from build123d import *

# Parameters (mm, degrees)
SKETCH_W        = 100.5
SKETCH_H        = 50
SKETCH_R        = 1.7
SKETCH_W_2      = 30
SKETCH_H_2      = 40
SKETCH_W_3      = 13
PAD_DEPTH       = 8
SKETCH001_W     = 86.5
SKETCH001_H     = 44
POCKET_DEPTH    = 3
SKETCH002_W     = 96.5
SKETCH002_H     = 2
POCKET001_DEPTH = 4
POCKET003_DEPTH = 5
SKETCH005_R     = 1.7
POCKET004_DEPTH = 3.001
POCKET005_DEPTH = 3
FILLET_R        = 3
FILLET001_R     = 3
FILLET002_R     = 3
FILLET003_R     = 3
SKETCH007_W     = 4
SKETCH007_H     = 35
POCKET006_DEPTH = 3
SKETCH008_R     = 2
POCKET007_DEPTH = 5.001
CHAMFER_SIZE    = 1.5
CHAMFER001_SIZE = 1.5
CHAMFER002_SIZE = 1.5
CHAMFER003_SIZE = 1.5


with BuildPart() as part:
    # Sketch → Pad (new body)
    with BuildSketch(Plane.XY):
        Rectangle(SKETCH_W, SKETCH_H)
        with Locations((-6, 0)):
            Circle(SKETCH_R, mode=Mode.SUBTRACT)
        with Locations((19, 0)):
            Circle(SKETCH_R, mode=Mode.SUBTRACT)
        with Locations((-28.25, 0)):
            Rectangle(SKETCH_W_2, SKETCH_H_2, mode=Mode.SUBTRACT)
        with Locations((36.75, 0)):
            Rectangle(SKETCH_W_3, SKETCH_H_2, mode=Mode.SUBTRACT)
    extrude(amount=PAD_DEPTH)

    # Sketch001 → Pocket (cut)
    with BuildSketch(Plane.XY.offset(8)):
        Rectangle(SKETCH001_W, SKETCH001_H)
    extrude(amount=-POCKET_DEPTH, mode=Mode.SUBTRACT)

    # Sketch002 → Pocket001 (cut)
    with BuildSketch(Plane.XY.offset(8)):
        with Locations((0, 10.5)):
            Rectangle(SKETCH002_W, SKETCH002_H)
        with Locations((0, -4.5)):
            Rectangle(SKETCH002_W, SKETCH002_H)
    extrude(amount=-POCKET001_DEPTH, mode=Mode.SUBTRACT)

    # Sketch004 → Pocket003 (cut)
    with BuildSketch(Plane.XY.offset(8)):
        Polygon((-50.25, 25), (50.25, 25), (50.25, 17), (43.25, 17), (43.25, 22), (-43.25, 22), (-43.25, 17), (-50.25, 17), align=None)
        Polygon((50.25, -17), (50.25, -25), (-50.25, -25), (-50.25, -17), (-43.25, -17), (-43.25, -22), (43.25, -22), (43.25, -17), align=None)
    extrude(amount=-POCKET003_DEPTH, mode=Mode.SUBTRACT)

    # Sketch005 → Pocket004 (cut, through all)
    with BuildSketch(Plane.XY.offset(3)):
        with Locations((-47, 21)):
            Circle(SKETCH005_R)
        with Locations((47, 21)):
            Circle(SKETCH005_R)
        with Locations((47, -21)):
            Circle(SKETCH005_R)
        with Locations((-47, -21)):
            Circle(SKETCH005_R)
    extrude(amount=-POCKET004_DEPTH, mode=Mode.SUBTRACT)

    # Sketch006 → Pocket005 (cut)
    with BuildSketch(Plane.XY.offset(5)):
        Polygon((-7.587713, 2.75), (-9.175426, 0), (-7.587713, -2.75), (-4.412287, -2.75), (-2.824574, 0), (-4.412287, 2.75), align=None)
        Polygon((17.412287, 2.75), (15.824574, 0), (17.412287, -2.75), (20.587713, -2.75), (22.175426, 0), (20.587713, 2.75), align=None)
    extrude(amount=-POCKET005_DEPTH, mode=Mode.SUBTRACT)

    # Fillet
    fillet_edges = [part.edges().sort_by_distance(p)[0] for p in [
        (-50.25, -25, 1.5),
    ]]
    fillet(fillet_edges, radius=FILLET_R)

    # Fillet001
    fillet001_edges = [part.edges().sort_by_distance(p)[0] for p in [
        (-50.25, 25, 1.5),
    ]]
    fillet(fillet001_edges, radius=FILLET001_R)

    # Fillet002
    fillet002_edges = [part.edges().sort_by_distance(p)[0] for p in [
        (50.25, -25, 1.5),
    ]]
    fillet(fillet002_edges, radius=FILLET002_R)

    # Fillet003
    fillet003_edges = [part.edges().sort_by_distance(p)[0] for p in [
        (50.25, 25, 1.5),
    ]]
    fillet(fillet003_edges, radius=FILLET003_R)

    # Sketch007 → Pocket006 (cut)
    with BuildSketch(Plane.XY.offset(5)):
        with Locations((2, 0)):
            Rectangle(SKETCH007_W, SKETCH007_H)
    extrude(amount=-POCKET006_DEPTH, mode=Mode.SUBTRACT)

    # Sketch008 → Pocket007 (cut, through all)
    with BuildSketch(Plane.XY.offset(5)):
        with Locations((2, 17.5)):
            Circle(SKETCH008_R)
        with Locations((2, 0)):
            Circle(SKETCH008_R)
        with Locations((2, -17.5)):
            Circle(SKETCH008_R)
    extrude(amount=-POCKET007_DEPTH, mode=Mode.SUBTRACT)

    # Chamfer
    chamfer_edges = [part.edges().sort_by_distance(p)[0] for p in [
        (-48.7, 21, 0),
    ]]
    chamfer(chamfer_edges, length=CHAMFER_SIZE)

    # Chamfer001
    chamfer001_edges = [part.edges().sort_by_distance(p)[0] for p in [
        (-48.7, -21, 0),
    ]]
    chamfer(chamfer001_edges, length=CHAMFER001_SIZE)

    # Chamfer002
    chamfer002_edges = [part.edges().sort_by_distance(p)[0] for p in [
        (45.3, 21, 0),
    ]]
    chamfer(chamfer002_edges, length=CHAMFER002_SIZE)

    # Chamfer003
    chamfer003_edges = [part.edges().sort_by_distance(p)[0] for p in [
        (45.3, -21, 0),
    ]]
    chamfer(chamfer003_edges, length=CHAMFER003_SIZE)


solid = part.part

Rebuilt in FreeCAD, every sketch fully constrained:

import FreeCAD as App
import Part
import Sketcher

V = App.Vector
Q = App.Units.Quantity


def edges_at(feature, points):
    """Names of the edges that pass closest to the given points."""
    edges = feature.Shape.Edges
    near = lambda p: min(range(len(edges)), key=lambda i: edges[i].distToShape(Part.Vertex(*p))[0])
    return sorted({f"Edge{near(p) + 1}" for p in points})

doc = App.newDocument("Part")
body = doc.addObject("PartDesign::Body", "Body")

# Sketch on XY plane
sketch1 = body.newObject("Sketcher::SketchObject", "Sketch")
sketch1.AttachmentSupport = (doc.getObject("XY_Plane"), [""])
sketch1.MapMode = "FlatFace"
sketch1.addGeometry([
    Part.LineSegment(V(-50.25, 25, 0), V(-50.25, -25, 0)),  # 0
    Part.LineSegment(V(-50.25, -25, 0), V(50.25, -25, 0)),  # 1
    Part.LineSegment(V(50.25, -25, 0), V(50.25, 25, 0)),  # 2
    Part.LineSegment(V(50.25, 25, 0), V(-50.25, 25, 0)),  # 3
    Part.LineSegment(V(-13.25, -20, 0), V(-43.25, -20, 0)),  # 4
    Part.LineSegment(V(-43.25, -20, 0), V(-43.25, 20, 0)),  # 5
    Part.LineSegment(V(-43.25, 20, 0), V(-13.25, 20, 0)),  # 6
    Part.LineSegment(V(-13.25, 20, 0), V(-13.25, -20, 0)),  # 7
    Part.Circle(V(-6, 0, 0), V(0, 0, 1), 1.7),  # 8
    Part.Circle(V(19, 0, 0), V(0, 0, 1), 1.7),  # 9
    Part.LineSegment(V(43.25, -20, 0), V(30.25, -20, 0)),  # 10
    Part.LineSegment(V(30.25, -20, 0), V(30.25, 20, 0)),  # 11
    Part.LineSegment(V(30.25, 20, 0), V(43.25, 20, 0)),  # 12
    Part.LineSegment(V(43.25, 20, 0), V(43.25, -20, 0)),  # 13
], False)
sketch1.addConstraint([
    Sketcher.Constraint("Coincident", 0, 2, 1, 1),
    Sketcher.Constraint("Coincident", 1, 2, 2, 1),
    Sketcher.Constraint("Coincident", 2, 2, 3, 1),
    Sketcher.Constraint("Coincident", 3, 2, 0, 1),
    Sketcher.Constraint("Coincident", 4, 2, 5, 1),
    Sketcher.Constraint("Coincident", 5, 2, 6, 1),
    Sketcher.Constraint("Coincident", 6, 2, 7, 1),
    Sketcher.Constraint("Coincident", 7, 2, 4, 1),
    Sketcher.Constraint("Coincident", 10, 2, 11, 1),
    Sketcher.Constraint("Coincident", 11, 2, 12, 1),
    Sketcher.Constraint("Coincident", 12, 2, 13, 1),
    Sketcher.Constraint("Coincident", 13, 2, 10, 1),
    Sketcher.Constraint("Vertical", 0),
    Sketcher.Constraint("Horizontal", 1),
    Sketcher.Constraint("Vertical", 2),
    Sketcher.Constraint("Horizontal", 3),
    Sketcher.Constraint("Horizontal", 4),
    Sketcher.Constraint("Vertical", 5),
    Sketcher.Constraint("Horizontal", 6),
    Sketcher.Constraint("Vertical", 7),
    Sketcher.Constraint("Horizontal", 10),
    Sketcher.Constraint("Vertical", 11),
    Sketcher.Constraint("Horizontal", 12),
    Sketcher.Constraint("Vertical", 13),
    Sketcher.Constraint("Equal", 8, 9),
    Sketcher.Constraint("Symmetric", 0, 2, 2, 2, -1, 1),
    Sketcher.Constraint("Symmetric", 4, 2, 12, 2, -1, 1),
    Sketcher.Constraint("PointOnObject", 8, 3, -1),
    Sketcher.Constraint("PointOnObject", 9, 3, -1),
    Sketcher.Constraint("Horizontal", 7, 2, 10, 2),
    Sketcher.Constraint("Horizontal", 6, 2, 11, 2),
    Sketcher.Constraint("Diameter", 8, Q("3.4 mm")),
    Sketcher.Constraint("DistanceX", 4, 2, 4, 1, Q("30 mm")),
    Sketcher.Constraint("DistanceX", 10, 2, 10, 1, Q("13 mm")),
    Sketcher.Constraint("DistanceY", 0, 2, 0, 1, Q("50 mm")),
    Sketcher.Constraint("DistanceY", 5, 1, 5, 2, Q("40 mm")),
    Sketcher.Constraint("DistanceX", 1, 1, 1, 2, Q("100.5 mm")),
    Sketcher.Constraint("DistanceX", 8, 3, -1, 1, Q("6 mm")),
    Sketcher.Constraint("DistanceX", -1, 1, 9, 3, Q("19 mm")),
    Sketcher.Constraint("DistanceX", 0, 2, 4, 2, Q("7 mm")),
])
pad1 = body.newObject("PartDesign::Pad", "Pad")
pad1.Profile = sketch1
pad1.Length = 8

# Sketch on XY plane
sketch2 = body.newObject("Sketcher::SketchObject", "Sketch001")
sketch2.AttachmentSupport = (doc.getObject("XY_Plane"), [""])
sketch2.MapMode = "FlatFace"
sketch2.AttachmentOffset = App.Placement(V(0, 0, 8), App.Rotation())
sketch2.addGeometry([
    Part.LineSegment(V(-43.25, 22, 0), V(-43.25, -22, 0)),
    Part.LineSegment(V(-43.25, -22, 0), V(43.25, -22, 0)),
    Part.LineSegment(V(43.25, -22, 0), V(43.25, 22, 0)),
    Part.LineSegment(V(43.25, 22, 0), V(-43.25, 22, 0)),
], False)
sketch2.addConstraint([
    Sketcher.Constraint("Coincident", 0, 2, 1, 1),
    Sketcher.Constraint("Coincident", 1, 2, 2, 1),
    Sketcher.Constraint("Coincident", 2, 2, 3, 1),
    Sketcher.Constraint("Coincident", 3, 2, 0, 1),
    Sketcher.Constraint("Vertical", 0),
    Sketcher.Constraint("Horizontal", 1),
    Sketcher.Constraint("Vertical", 2),
    Sketcher.Constraint("Horizontal", 3),
    Sketcher.Constraint("Symmetric", 0, 2, 2, 2, -1, 1),
    Sketcher.Constraint("DistanceY", 0, 2, 0, 1, Q("44 mm")),
    Sketcher.Constraint("DistanceX", 1, 1, 1, 2, Q("86.5 mm")),
])
pocket1 = body.newObject("PartDesign::Pocket", "Pocket")
pocket1.Profile = sketch2
pocket1.Length = 3

# Sketch on XY plane
sketch3 = body.newObject("Sketcher::SketchObject", "Sketch002")
sketch3.AttachmentSupport = (doc.getObject("XY_Plane"), [""])
sketch3.MapMode = "FlatFace"
sketch3.AttachmentOffset = App.Placement(V(0, 0, 8), App.Rotation())
sketch3.addGeometry([
    Part.LineSegment(V(-48.25, 11.5, 0), V(-48.25, 9.5, 0)),  # 0
    Part.LineSegment(V(-48.25, 9.5, 0), V(48.25, 9.5, 0)),  # 1
    Part.LineSegment(V(48.25, 9.5, 0), V(48.25, 11.5, 0)),  # 2
    Part.LineSegment(V(48.25, 11.5, 0), V(-48.25, 11.5, 0)),  # 3
    Part.LineSegment(V(-48.25, -3.5, 0), V(-48.25, -5.5, 0)),  # 4
    Part.LineSegment(V(-48.25, -5.5, 0), V(48.25, -5.5, 0)),  # 5
    Part.LineSegment(V(48.25, -5.5, 0), V(48.25, -3.5, 0)),  # 6
    Part.LineSegment(V(48.25, -3.5, 0), V(-48.25, -3.5, 0)),  # 7
], False)
sketch3.addConstraint([
    Sketcher.Constraint("Coincident", 0, 2, 1, 1),
    Sketcher.Constraint("Coincident", 1, 2, 2, 1),
    Sketcher.Constraint("Coincident", 2, 2, 3, 1),
    Sketcher.Constraint("Coincident", 3, 2, 0, 1),
    Sketcher.Constraint("Coincident", 4, 2, 5, 1),
    Sketcher.Constraint("Coincident", 5, 2, 6, 1),
    Sketcher.Constraint("Coincident", 6, 2, 7, 1),
    Sketcher.Constraint("Coincident", 7, 2, 4, 1),
    Sketcher.Constraint("Vertical", 0),
    Sketcher.Constraint("Horizontal", 1),
    Sketcher.Constraint("Vertical", 2),
    Sketcher.Constraint("Horizontal", 3),
    Sketcher.Constraint("Vertical", 4),
    Sketcher.Constraint("Horizontal", 5),
    Sketcher.Constraint("Vertical", 6),
    Sketcher.Constraint("Horizontal", 7),
    Sketcher.Constraint("Vertical", 3, 2, 4, 2),
    Sketcher.Constraint("Vertical", 2, 2, 5, 2),
    Sketcher.Constraint("Equal", 2, 4),
    Sketcher.Constraint("DistanceY", 0, 2, 0, 1, Q("2 mm")),
    Sketcher.Constraint("DistanceX", 1, 1, 1, 2, Q("96.5 mm")),
    Sketcher.Constraint("DistanceY", 4, 2, 0, 2, Q("15 mm")),
    Sketcher.Constraint("DistanceY", -1, 1, 0, 2, Q("9.5 mm")),
    Sketcher.Constraint("DistanceX", 0, 2, -1, 1, Q("48.25 mm")),
])
pocket2 = body.newObject("PartDesign::Pocket", "Pocket001")
pocket2.Profile = sketch3
pocket2.Length = 4

# Sketch on XY plane
sketch4 = body.newObject("Sketcher::SketchObject", "Sketch003")
sketch4.AttachmentSupport = (doc.getObject("XY_Plane"), [""])
sketch4.MapMode = "FlatFace"
sketch4.AttachmentOffset = App.Placement(V(0, 0, 8), App.Rotation())
sketch4.addGeometry([
    Part.LineSegment(V(50.25, 25, 0), V(-50.25, 25, 0)),  # 0
    Part.LineSegment(V(-50.25, 25, 0), V(-50.25, 17, 0)),  # 1
    Part.LineSegment(V(-50.25, 17, 0), V(-43.25, 17, 0)),  # 2
    Part.LineSegment(V(-43.25, 17, 0), V(-43.25, 22, 0)),  # 3
    Part.LineSegment(V(-43.25, 22, 0), V(43.25, 22, 0)),  # 4
    Part.LineSegment(V(43.25, 22, 0), V(43.25, 17, 0)),  # 5
    Part.LineSegment(V(43.25, 17, 0), V(50.25, 17, 0)),  # 6
    Part.LineSegment(V(50.25, 17, 0), V(50.25, 25, 0)),  # 7
    Part.LineSegment(V(50.25, -25, 0), V(50.25, -17, 0)),  # 8
    Part.LineSegment(V(50.25, -17, 0), V(43.25, -17, 0)),  # 9
    Part.LineSegment(V(43.25, -17, 0), V(43.25, -22, 0)),  # 10
    Part.LineSegment(V(43.25, -22, 0), V(-43.25, -22, 0)),  # 11
    Part.LineSegment(V(-43.25, -22, 0), V(-43.25, -17, 0)),  # 12
    Part.LineSegment(V(-43.25, -17, 0), V(-50.25, -17, 0)),  # 13
    Part.LineSegment(V(-50.25, -17, 0), V(-50.25, -25, 0)),  # 14
    Part.LineSegment(V(-50.25, -25, 0), V(50.25, -25, 0)),  # 15
], False)
sketch4.addConstraint([
    Sketcher.Constraint("Coincident", 0, 2, 1, 1),
    Sketcher.Constraint("Coincident", 1, 2, 2, 1),
    Sketcher.Constraint("Coincident", 2, 2, 3, 1),
    Sketcher.Constraint("Coincident", 3, 2, 4, 1),
    Sketcher.Constraint("Coincident", 4, 2, 5, 1),
    Sketcher.Constraint("Coincident", 5, 2, 6, 1),
    Sketcher.Constraint("Coincident", 6, 2, 7, 1),
    Sketcher.Constraint("Coincident", 7, 2, 0, 1),
    Sketcher.Constraint("Coincident", 8, 2, 9, 1),
    Sketcher.Constraint("Coincident", 9, 2, 10, 1),
    Sketcher.Constraint("Coincident", 10, 2, 11, 1),
    Sketcher.Constraint("Coincident", 11, 2, 12, 1),
    Sketcher.Constraint("Coincident", 12, 2, 13, 1),
    Sketcher.Constraint("Coincident", 13, 2, 14, 1),
    Sketcher.Constraint("Coincident", 14, 2, 15, 1),
    Sketcher.Constraint("Coincident", 15, 2, 8, 1),
    Sketcher.Constraint("Horizontal", 0),
    Sketcher.Constraint("Vertical", 1),
    Sketcher.Constraint("Horizontal", 2),
    Sketcher.Constraint("Vertical", 3),
    Sketcher.Constraint("Horizontal", 4),
    Sketcher.Constraint("Vertical", 5),
    Sketcher.Constraint("Horizontal", 6),
    Sketcher.Constraint("Vertical", 7),
    Sketcher.Constraint("Vertical", 8),
    Sketcher.Constraint("Horizontal", 9),
    Sketcher.Constraint("Vertical", 10),
    Sketcher.Constraint("Horizontal", 11),
    Sketcher.Constraint("Vertical", 12),
    Sketcher.Constraint("Horizontal", 13),
    Sketcher.Constraint("Vertical", 14),
    Sketcher.Constraint("Horizontal", 15),
    Sketcher.Constraint("Symmetric", 1, 2, 8, 2, -1, 1),
    Sketcher.Constraint("Symmetric", 3, 2, 10, 2, -1, 1),
    Sketcher.Constraint("Symmetric", 5, 2, 12, 2, -1, 1),
    Sketcher.Constraint("Symmetric", 7, 2, 14, 2, -1, 1),
    Sketcher.Constraint("Symmetric", 2, 2, 5, 2, -2),
    Sketcher.Constraint("Vertical", 7, 2, 8, 2),
    Sketcher.Constraint("DistanceX", 2, 1, 2, 2, Q("7 mm")),
    Sketcher.Constraint("DistanceY", 1, 2, 1, 1, Q("8 mm")),
    Sketcher.Constraint("DistanceY", 3, 1, 3, 2, Q("5 mm")),
    Sketcher.Constraint("DistanceX", 0, 2, 0, 1, Q("100.5 mm")),
    Sketcher.Constraint("DistanceY", -1, 1, 0, 2, Q("25 mm")),
])
pocket3 = body.newObject("PartDesign::Pocket", "Pocket002")
pocket3.Profile = sketch4
pocket3.Length = 5

# Sketch on XY plane
sketch5 = body.newObject("Sketcher::SketchObject", "Sketch004")
sketch5.AttachmentSupport = (doc.getObject("XY_Plane"), [""])
sketch5.MapMode = "FlatFace"
sketch5.AttachmentOffset = App.Placement(V(0, 0, 3), App.Rotation())
sketch5.addGeometry([
    Part.Circle(V(-47, 21, 0), V(0, 0, 1), 1.7),
    Part.Circle(V(47, 21, 0), V(0, 0, 1), 1.7),
    Part.Circle(V(47, -21, 0), V(0, 0, 1), 1.7),
    Part.Circle(V(-47, -21, 0), V(0, 0, 1), 1.7),
], False)
sketch5.addConstraint([
    Sketcher.Constraint("Equal", 0, 1),
    Sketcher.Constraint("Equal", 1, 2),
    Sketcher.Constraint("Equal", 2, 3),
    Sketcher.Constraint("Symmetric", 0, 3, 2, 3, -1, 1),
    Sketcher.Constraint("Symmetric", 1, 3, 3, 3, -1, 1),
    Sketcher.Constraint("Symmetric", 0, 3, 1, 3, -2),
    Sketcher.Constraint("Diameter", 0, Q("3.4 mm")),
    Sketcher.Constraint("DistanceX", 0, 3, -1, 1, Q("47 mm")),
    Sketcher.Constraint("DistanceY", -1, 1, 0, 3, Q("21 mm")),
])
pocket4 = body.newObject("PartDesign::Pocket", "Pocket003")
pocket4.Profile = sketch5
pocket4.Type = "ThroughAll"

# Sketch on XY plane
sketch6 = body.newObject("Sketcher::SketchObject", "Sketch005")
sketch6.AttachmentSupport = (doc.getObject("XY_Plane"), [""])
sketch6.MapMode = "FlatFace"
sketch6.AttachmentOffset = App.Placement(V(0, 0, 5), App.Rotation())
sketch6.addGeometry([
    Part.LineSegment(V(-7.587713, 2.75, 0), V(-9.175426, 0, 0)),  # 0
    Part.LineSegment(V(-9.175426, 0, 0), V(-7.587713, -2.75, 0)),  # 1
    Part.LineSegment(V(-7.587713, -2.75, 0), V(-4.412287, -2.75, 0)),  # 2
    Part.LineSegment(V(-4.412287, -2.75, 0), V(-2.824574, 0, 0)),  # 3
    Part.LineSegment(V(-2.824574, 0, 0), V(-4.412287, 2.75, 0)),  # 4
    Part.LineSegment(V(-4.412287, 2.75, 0), V(-7.587713, 2.75, 0)),  # 5
    Part.LineSegment(V(17.412287, 2.75, 0), V(15.824574, 0, 0)),  # 6
    Part.LineSegment(V(15.824574, 0, 0), V(17.412287, -2.75, 0)),  # 7
    Part.LineSegment(V(17.412287, -2.75, 0), V(20.587713, -2.75, 0)),  # 8
    Part.LineSegment(V(20.587713, -2.75, 0), V(22.175426, 0, 0)),  # 9
    Part.LineSegment(V(22.175426, 0, 0), V(20.587713, 2.75, 0)),  # 10
    Part.LineSegment(V(20.587713, 2.75, 0), V(17.412287, 2.75, 0)),  # 11
], False)
sketch6.addConstraint([
    Sketcher.Constraint("Coincident", 0, 2, 1, 1),
    Sketcher.Constraint("Coincident", 1, 2, 2, 1),
    Sketcher.Constraint("Coincident", 2, 2, 3, 1),
    Sketcher.Constraint("Coincident", 3, 2, 4, 1),
    Sketcher.Constraint("Coincident", 4, 2, 5, 1),
    Sketcher.Constraint("Coincident", 5, 2, 0, 1),
    Sketcher.Constraint("Coincident", 6, 2, 7, 1),
    Sketcher.Constraint("Coincident", 7, 2, 8, 1),
    Sketcher.Constraint("Coincident", 8, 2, 9, 1),
    Sketcher.Constraint("Coincident", 9, 2, 10, 1),
    Sketcher.Constraint("Coincident", 10, 2, 11, 1),
    Sketcher.Constraint("Coincident", 11, 2, 6, 1),
    Sketcher.Constraint("Horizontal", 2),
    Sketcher.Constraint("Horizontal", 5),
    Sketcher.Constraint("Horizontal", 8),
    Sketcher.Constraint("Horizontal", 11),
    Sketcher.Constraint("Symmetric", 2, 2, 4, 2, -1),
    Sketcher.Constraint("Symmetric", 8, 2, 10, 2, -1),
    Sketcher.Constraint("PointOnObject", 0, 2, -1),
    Sketcher.Constraint("PointOnObject", 3, 2, -1),
    Sketcher.Constraint("PointOnObject", 6, 2, -1),
    Sketcher.Constraint("PointOnObject", 9, 2, -1),
    Sketcher.Constraint("Parallel", 0, 3),
    Sketcher.Constraint("Parallel", 1, 4),
    Sketcher.Constraint("Parallel", 3, 6),
    Sketcher.Constraint("Parallel", 4, 7),
    Sketcher.Constraint("Parallel", 6, 9),
    Sketcher.Constraint("Horizontal", 2, 2, 7, 2),
    Sketcher.Constraint("Equal", 5, 8),
    Sketcher.Constraint("Angle", 0, Q("-119.999996 deg")),
    Sketcher.Constraint("DistanceX", 1, 2, 7, 2, Q("25 mm")),
    Sketcher.Constraint("DistanceY", 2, 2, 4, 2, Q("5.5 mm")),
    Sketcher.Constraint("DistanceX", 2, 1, 2, 2, Q("3.175426 mm")),
    Sketcher.Constraint("DistanceX", 0, 2, -1, 1, Q("9.175426 mm")),
])
pocket5 = body.newObject("PartDesign::Pocket", "Pocket004")
pocket5.Profile = sketch6
pocket5.Length = 3
doc.recompute()

fillet = body.newObject("PartDesign::Fillet", "Fillet")
fillet.Base = (pocket5, edges_at(pocket5, [(-50.25, -25, 1.5)]))
fillet.Radius = 3
doc.recompute()

fillet2 = body.newObject("PartDesign::Fillet", "Fillet001")
fillet2.Base = (fillet, edges_at(fillet, [(-50.25, 25, 1.5)]))
fillet2.Radius = 3
doc.recompute()

fillet3 = body.newObject("PartDesign::Fillet", "Fillet002")
fillet3.Base = (fillet2, edges_at(fillet2, [(50.25, -25, 1.5)]))
fillet3.Radius = 3
doc.recompute()

fillet4 = body.newObject("PartDesign::Fillet", "Fillet003")
fillet4.Base = (fillet3, edges_at(fillet3, [(50.25, 25, 1.5)]))
fillet4.Radius = 3

# Sketch on XY plane
sketch7 = body.newObject("Sketcher::SketchObject", "Sketch006")
sketch7.AttachmentSupport = (doc.getObject("XY_Plane"), [""])
sketch7.MapMode = "FlatFace"
sketch7.AttachmentOffset = App.Placement(V(0, 0, 5), App.Rotation())
sketch7.addGeometry([
    Part.LineSegment(V(0, 17.5, 0), V(0, -17.5, 0)),
    Part.LineSegment(V(0, -17.5, 0), V(4, -17.5, 0)),
    Part.LineSegment(V(4, -17.5, 0), V(4, 17.5, 0)),
    Part.LineSegment(V(4, 17.5, 0), V(0, 17.5, 0)),
], False)
sketch7.addConstraint([
    Sketcher.Constraint("Coincident", 0, 2, 1, 1),
    Sketcher.Constraint("Coincident", 1, 2, 2, 1),
    Sketcher.Constraint("Coincident", 2, 2, 3, 1),
    Sketcher.Constraint("Coincident", 3, 2, 0, 1),
    Sketcher.Constraint("Vertical", 0),
    Sketcher.Constraint("Horizontal", 1),
    Sketcher.Constraint("Vertical", 2),
    Sketcher.Constraint("Horizontal", 3),
    Sketcher.Constraint("Symmetric", 0, 2, 3, 2, -1, 1),
    Sketcher.Constraint("DistanceX", 1, 1, 1, 2, Q("4 mm")),
    Sketcher.Constraint("DistanceY", 0, 2, 0, 1, Q("35 mm")),
])
pocket6 = body.newObject("PartDesign::Pocket", "Pocket005")
pocket6.Profile = sketch7
pocket6.Length = 3

# Sketch on XY plane
sketch8 = body.newObject("Sketcher::SketchObject", "Sketch007")
sketch8.AttachmentSupport = (doc.getObject("XY_Plane"), [""])
sketch8.MapMode = "FlatFace"
sketch8.AttachmentOffset = App.Placement(V(0, 0, 5), App.Rotation())
sketch8.addGeometry([
    Part.Circle(V(2, 17.5, 0), V(0, 0, 1), 2),
    Part.Circle(V(2, 0, 0), V(0, 0, 1), 2),
    Part.Circle(V(2, -17.5, 0), V(0, 0, 1), 2),
], False)
sketch8.addConstraint([
    Sketcher.Constraint("Equal", 0, 1),
    Sketcher.Constraint("Equal", 1, 2),
    Sketcher.Constraint("Symmetric", 0, 3, 2, 3, -1),
    Sketcher.Constraint("PointOnObject", 1, 3, -1),
    Sketcher.Constraint("Vertical", 0, 3, 1, 3),
    Sketcher.Constraint("Diameter", 0, Q("4 mm")),
    Sketcher.Constraint("DistanceX", -1, 1, 0, 3, Q("2 mm")),
    Sketcher.Constraint("DistanceY", 2, 3, 0, 3, Q("35 mm")),
])
pocket7 = body.newObject("PartDesign::Pocket", "Pocket006")
pocket7.Profile = sketch8
pocket7.Type = "ThroughAll"
doc.recompute()

chamfer = body.newObject("PartDesign::Chamfer", "Chamfer")
chamfer.Base = (pocket7, edges_at(pocket7, [(-48.7, 21, 0)]))
chamfer.Size = 1.5
doc.recompute()

chamfer2 = body.newObject("PartDesign::Chamfer", "Chamfer001")
chamfer2.Base = (chamfer, edges_at(chamfer, [(-48.7, -21, 0)]))
chamfer2.Size = 1.5
doc.recompute()

chamfer3 = body.newObject("PartDesign::Chamfer", "Chamfer002")
chamfer3.Base = (chamfer2, edges_at(chamfer2, [(45.3, 21, 0)]))
chamfer3.Size = 1.5
doc.recompute()

chamfer4 = body.newObject("PartDesign::Chamfer", "Chamfer003")
chamfer4.Base = (chamfer3, edges_at(chamfer3, [(45.3, -21, 0)]))
chamfer4.Size = 1.5

doc.recompute()
